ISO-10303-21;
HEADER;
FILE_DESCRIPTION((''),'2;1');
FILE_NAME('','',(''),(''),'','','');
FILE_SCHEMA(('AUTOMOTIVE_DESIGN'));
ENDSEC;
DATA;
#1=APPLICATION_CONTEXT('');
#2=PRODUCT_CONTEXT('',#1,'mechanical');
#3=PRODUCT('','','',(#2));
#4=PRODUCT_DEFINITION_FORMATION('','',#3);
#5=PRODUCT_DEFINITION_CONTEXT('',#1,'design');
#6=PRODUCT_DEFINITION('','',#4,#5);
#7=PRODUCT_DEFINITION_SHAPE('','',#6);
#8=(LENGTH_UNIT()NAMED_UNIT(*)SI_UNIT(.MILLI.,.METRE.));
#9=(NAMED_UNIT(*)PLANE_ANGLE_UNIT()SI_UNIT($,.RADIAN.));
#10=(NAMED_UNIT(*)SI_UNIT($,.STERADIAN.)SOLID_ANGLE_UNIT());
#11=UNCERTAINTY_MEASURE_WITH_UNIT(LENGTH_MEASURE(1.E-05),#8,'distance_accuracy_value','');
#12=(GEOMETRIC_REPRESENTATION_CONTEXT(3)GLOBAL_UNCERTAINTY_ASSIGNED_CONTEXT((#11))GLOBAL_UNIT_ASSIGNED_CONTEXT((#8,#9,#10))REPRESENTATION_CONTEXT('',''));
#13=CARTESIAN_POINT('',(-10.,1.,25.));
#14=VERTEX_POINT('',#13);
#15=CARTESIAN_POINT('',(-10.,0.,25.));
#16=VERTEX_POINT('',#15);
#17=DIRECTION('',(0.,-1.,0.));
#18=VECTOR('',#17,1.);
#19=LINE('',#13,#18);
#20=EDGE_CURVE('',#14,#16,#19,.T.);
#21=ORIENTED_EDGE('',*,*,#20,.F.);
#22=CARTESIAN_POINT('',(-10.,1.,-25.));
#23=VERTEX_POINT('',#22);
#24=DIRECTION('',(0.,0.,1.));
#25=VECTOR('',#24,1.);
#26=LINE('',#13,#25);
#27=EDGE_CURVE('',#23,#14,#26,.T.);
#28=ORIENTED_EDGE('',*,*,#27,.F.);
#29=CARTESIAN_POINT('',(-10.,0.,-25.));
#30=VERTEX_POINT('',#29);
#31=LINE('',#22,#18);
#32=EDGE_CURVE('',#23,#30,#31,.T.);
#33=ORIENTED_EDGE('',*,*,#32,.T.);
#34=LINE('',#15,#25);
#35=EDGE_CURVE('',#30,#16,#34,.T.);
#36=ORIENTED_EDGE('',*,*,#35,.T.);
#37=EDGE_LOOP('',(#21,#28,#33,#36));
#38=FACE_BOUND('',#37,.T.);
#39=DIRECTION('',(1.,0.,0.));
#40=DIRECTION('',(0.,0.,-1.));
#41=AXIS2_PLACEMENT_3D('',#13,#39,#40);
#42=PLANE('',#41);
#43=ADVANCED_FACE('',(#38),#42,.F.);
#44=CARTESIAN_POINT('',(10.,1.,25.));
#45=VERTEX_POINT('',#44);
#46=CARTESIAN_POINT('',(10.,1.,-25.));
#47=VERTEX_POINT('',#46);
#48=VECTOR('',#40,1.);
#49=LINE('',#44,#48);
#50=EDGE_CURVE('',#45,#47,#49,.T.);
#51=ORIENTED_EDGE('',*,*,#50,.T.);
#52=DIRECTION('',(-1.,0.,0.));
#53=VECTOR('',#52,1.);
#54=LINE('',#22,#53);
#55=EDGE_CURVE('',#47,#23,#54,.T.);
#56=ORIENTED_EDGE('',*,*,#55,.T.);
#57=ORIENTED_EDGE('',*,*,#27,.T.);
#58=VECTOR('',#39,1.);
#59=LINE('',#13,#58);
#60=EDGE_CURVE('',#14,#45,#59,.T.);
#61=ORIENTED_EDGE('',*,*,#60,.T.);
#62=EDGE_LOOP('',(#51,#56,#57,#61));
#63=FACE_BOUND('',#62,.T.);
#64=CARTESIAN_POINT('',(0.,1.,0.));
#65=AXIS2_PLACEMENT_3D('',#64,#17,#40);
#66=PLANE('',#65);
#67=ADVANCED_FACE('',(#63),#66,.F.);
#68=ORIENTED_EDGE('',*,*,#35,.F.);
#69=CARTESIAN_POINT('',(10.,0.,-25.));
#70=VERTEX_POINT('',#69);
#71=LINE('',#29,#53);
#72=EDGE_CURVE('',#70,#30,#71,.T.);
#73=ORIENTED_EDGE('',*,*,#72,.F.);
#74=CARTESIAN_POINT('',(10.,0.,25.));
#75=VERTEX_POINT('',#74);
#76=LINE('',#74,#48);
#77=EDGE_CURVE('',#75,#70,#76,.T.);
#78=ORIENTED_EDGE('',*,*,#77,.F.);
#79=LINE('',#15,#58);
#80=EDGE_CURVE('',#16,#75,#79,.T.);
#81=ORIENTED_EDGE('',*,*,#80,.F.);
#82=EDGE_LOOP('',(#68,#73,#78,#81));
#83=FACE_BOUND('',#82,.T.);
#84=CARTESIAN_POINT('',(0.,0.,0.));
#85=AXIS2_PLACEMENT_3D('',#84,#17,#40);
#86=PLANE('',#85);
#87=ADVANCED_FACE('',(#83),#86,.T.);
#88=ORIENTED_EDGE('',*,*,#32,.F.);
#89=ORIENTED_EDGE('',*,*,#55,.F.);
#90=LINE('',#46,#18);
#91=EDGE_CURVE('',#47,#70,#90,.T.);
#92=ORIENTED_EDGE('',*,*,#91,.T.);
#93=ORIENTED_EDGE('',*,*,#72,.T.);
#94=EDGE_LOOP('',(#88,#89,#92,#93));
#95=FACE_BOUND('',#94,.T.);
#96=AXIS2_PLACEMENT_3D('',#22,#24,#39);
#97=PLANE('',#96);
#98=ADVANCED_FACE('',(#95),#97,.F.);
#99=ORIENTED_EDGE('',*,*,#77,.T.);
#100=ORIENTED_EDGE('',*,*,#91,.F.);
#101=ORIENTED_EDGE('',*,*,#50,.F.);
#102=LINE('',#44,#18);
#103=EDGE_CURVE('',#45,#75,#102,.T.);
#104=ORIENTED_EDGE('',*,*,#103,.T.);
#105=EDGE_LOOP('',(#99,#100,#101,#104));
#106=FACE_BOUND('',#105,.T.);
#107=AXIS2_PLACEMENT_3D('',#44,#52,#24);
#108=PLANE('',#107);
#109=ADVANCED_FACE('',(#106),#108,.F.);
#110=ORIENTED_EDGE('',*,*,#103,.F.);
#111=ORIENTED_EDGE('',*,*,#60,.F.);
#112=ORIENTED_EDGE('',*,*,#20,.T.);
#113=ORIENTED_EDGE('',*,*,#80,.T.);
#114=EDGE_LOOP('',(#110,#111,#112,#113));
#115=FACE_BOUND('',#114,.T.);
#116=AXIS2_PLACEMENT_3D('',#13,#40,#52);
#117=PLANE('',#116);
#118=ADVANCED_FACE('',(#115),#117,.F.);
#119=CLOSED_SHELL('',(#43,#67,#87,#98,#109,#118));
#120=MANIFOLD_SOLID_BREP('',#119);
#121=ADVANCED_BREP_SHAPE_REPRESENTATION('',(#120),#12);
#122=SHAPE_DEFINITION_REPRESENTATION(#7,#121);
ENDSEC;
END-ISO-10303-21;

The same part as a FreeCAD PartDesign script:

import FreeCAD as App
import Part
import Sketcher
from FreeCAD import Vector
Q = App.Units.Quantity


def add_polygon(sketch, points):
    """Adds a closed chain of lines whose ends are joined by coincident constraints."""
    first, n = sketch.GeometryCount, len(points)
    for a, b in zip(points, points[1:] + points[:1]):
        sketch.addGeometry(Part.LineSegment(App.Vector(*a, 0), App.Vector(*b, 0)), False)
    for i in range(n):
        sketch.addConstraint(Sketcher.Constraint("Coincident", first + i, 2, first + (i + 1) % n, 1))

doc = App.newDocument("Part")
params = doc.addObject("Spreadsheet::Sheet", "Params")
for row, (alias, value) in enumerate([
    ("sketch1_width", "20 mm"),
    ("sketch1_height", "50 mm"),
    ("pad1_length", "1 mm"),
], start=1):
    params.set(f"A{row}", alias)
    params.set(f"B{row}", "=" + value)
    params.setAlias(f"B{row}", alias)

body = doc.addObject("PartDesign::Body", "Body")

# Sketch on XZ plane
sketch1 = body.newObject("Sketcher::SketchObject", "Sketch")
sketch1.AttachmentSupport = (doc.getObject("XZ_Plane"), [""])
sketch1.MapMode = "FlatFace"
add_polygon(sketch1, [(-10, -25), (-10, 25), (10, 25), (10, -25)])  # lines 0-3
sketch1.addConstraint([
    Sketcher.Constraint("Vertical", 0),
    Sketcher.Constraint("Horizontal", 1),
    Sketcher.Constraint("Vertical", 2),
    Sketcher.Constraint("Horizontal", 3),
    Sketcher.Constraint("Symmetric", 0, 2, 2, 2, -1, 1),
    Sketcher.Constraint("DistanceX", 1, 1, 1, 2, Q("20 mm")),
    Sketcher.Constraint("DistanceY", 0, 1, 0, 2, Q("50 mm")),
])
sketch1.setExpression("Constraints[9]", "Params.sketch1_width")
sketch1.setExpression("Constraints[10]", "Params.sketch1_height")
pad1 = body.newObject("PartDesign::Pad", "Pad")
pad1.Profile = sketch1
pad1.setExpression("Length", "Params.pad1_length")
pad1.Reversed = True

doc.recompute()
